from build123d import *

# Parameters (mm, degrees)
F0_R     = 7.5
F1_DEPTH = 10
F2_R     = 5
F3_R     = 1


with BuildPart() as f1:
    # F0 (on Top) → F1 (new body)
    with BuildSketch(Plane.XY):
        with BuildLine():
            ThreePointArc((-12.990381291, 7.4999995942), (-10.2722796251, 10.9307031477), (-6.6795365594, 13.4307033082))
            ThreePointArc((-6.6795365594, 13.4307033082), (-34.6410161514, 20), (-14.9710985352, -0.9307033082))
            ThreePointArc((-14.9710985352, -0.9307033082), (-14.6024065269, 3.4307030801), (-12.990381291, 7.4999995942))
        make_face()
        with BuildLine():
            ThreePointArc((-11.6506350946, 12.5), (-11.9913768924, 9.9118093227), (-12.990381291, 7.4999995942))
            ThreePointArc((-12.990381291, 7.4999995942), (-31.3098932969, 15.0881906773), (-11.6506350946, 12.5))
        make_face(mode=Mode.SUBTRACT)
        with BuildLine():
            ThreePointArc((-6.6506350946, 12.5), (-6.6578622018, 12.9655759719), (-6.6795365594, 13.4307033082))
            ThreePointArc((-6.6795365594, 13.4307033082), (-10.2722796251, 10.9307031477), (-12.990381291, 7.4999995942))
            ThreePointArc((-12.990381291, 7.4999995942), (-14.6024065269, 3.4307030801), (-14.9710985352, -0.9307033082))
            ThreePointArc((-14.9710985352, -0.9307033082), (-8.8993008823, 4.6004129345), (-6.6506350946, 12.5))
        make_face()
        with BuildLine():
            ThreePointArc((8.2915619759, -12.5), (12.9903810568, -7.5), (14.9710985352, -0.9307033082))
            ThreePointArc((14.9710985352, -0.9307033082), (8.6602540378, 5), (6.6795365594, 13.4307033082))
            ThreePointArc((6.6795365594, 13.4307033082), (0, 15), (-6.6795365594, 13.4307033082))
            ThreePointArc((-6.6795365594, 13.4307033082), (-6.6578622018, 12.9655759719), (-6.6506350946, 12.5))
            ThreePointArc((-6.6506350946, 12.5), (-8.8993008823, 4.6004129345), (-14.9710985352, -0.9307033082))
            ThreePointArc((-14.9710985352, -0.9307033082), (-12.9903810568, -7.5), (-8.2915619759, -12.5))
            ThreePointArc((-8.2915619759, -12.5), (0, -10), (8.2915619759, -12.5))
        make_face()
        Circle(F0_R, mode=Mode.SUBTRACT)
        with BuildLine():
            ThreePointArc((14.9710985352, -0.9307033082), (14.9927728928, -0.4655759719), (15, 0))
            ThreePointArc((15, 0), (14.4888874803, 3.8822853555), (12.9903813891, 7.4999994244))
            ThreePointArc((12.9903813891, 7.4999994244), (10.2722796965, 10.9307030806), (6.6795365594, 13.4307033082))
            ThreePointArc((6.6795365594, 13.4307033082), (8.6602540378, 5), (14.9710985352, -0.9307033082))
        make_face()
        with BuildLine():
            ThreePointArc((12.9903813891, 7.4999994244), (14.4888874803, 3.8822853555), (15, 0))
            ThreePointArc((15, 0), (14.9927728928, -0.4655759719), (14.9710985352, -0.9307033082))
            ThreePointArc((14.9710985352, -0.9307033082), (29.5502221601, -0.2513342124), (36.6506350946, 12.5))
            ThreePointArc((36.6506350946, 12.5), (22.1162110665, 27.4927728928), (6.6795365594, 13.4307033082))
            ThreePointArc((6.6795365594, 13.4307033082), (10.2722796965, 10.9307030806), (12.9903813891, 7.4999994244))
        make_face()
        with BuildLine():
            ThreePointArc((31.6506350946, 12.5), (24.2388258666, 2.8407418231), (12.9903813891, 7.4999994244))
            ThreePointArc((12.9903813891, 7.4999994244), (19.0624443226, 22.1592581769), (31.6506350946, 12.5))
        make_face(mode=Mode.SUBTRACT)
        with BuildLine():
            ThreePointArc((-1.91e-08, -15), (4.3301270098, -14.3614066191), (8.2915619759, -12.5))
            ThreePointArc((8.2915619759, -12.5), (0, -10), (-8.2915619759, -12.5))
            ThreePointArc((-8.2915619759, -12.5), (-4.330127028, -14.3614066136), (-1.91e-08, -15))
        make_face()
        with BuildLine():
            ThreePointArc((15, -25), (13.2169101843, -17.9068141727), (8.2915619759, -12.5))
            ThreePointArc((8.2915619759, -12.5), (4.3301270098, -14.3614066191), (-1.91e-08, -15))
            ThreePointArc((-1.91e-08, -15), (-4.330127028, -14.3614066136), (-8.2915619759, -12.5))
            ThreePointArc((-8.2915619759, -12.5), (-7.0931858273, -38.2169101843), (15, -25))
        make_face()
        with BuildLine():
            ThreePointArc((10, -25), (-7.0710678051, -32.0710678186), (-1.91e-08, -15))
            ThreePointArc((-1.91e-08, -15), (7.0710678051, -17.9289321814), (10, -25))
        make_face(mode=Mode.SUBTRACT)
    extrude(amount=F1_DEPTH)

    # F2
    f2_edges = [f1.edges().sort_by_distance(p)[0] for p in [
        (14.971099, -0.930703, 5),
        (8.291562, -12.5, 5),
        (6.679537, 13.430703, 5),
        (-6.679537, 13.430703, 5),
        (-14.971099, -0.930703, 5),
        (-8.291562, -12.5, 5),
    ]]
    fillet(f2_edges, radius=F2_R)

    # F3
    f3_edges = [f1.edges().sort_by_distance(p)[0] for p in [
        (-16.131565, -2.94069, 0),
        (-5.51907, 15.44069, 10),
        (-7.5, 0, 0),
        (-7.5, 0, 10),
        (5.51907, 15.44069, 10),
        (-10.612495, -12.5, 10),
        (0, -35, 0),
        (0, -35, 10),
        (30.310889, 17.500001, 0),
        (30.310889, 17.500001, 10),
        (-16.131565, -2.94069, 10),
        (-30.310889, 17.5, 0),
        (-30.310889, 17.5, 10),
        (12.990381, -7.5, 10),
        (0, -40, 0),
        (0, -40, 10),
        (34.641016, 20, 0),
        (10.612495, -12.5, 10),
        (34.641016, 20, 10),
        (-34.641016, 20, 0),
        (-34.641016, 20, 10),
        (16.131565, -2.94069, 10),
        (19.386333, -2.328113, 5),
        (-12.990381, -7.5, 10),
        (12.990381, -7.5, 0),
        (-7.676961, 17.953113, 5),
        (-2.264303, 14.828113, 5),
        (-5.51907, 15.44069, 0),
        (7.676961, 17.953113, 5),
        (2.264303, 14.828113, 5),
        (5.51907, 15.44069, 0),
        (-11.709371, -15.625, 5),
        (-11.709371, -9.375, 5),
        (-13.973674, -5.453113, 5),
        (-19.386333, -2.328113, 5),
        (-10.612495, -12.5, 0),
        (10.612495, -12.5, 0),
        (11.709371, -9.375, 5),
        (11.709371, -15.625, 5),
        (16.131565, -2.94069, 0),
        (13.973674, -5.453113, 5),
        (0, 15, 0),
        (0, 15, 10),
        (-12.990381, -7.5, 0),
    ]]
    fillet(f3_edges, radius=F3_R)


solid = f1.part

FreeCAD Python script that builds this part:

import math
import FreeCAD as App
import Part
import Sketcher


def edges_at(feature, points):
    """Names of the edges that pass closest to the given points."""
    edges = feature.Shape.Edges
    near = lambda p: min(range(len(edges)), key=lambda i: edges[i].distToShape(Part.Vertex(*p))[0])
    return sorted({f"Edge{near(p) + 1}" for p in points})

doc = App.newDocument("Part")
body = doc.addObject("PartDesign::Body", "Body")

# Sketch on XY plane
sketch1 = body.newObject("Sketcher::SketchObject", "Sketch")
sketch1.AttachmentSupport = (doc.getObject("XY_Plane"), [""])
sketch1.MapMode = "FlatFace"
sketch1.addGeometry([
    Part.ArcOfCircle(Part.Circle(App.Vector(-22, 12, 0), App.Vector(0, 0, 1), 15), math.radians(4), math.radians(296)),  # 0
    Part.ArcOfCircle(Part.Circle(App.Vector(0, 0, 0), App.Vector(0, 0, 1), 15), math.radians(-176), math.radians(-124)),  # 1
    Part.ArcOfCircle(Part.Circle(App.Vector(0, -25, 0), App.Vector(0, 0, 1), 15), math.radians(124), math.radians(360)),  # 2
    Part.ArcOfCircle(Part.Circle(App.Vector(0, -25, 0), App.Vector(0, 0, 1), 15), math.radians(0), math.radians(56)),  # 3
    Part.ArcOfCircle(Part.Circle(App.Vector(0, 0, 0), App.Vector(0, 0, 1), 15), math.radians(-56), math.radians(-4)),  # 4
    Part.ArcOfCircle(Part.Circle(App.Vector(22, 12, 0), App.Vector(0, 0, 1), 15), math.radians(-116), math.radians(0)),  # 5
    Part.ArcOfCircle(Part.Circle(App.Vector(22, 12, 0), App.Vector(0, 0, 1), 15), math.radians(0), math.radians(176)),  # 6
    Part.ArcOfCircle(Part.Circle(App.Vector(0, 0, 0), App.Vector(0, 0, 1), 15), math.radians(64), math.radians(116)),  # 7
    Part.ArcOfCircle(Part.Circle(App.Vector(0, -25, 0), App.Vector(0, 0, 1), 10), math.radians(0), math.radians(90)),  # 8
    Part.ArcOfCircle(Part.Circle(App.Vector(0, -25, 0), App.Vector(0, 0, 1), 10), math.radians(90), math.radians(360)),  # 9
    Part.ArcOfCircle(Part.Circle(App.Vector(-22, 13, 0), App.Vector(0, 0, 1), 10), math.radians(-30), math.radians(0)),  # 10
    Part.ArcOfCircle(Part.Circle(App.Vector(-22, 12, 0), App.Vector(0, 0, 1), 10), math.radians(0), math.radians(330)),  # 11
    Part.Circle(App.Vector(0, 0, 0), App.Vector(0, 0, 1), 8),  # 12
    Part.ArcOfCircle(Part.Circle(App.Vector(22, 12, 0), App.Vector(0, 0, 1), 10), math.radians(0), math.radians(210)),  # 13
    Part.ArcOfCircle(Part.Circle(App.Vector(22, 12, 0), App.Vector(0, 0, 1), 10), math.radians(-150), math.radians(0)),  # 14
], False)
sketch1.addConstraint([
    Sketcher.Constraint("Coincident", 0, 2, 1, 1),
    Sketcher.Constraint("Coincident", 1, 2, 2, 1),
    Sketcher.Constraint("Tangent", 2, 2, 3, 1),
    Sketcher.Constraint("Coincident", 3, 2, 4, 1),
    Sketcher.Constraint("Coincident", 4, 2, 5, 1),
    Sketcher.Constraint("Tangent", 5, 2, 6, 1),
    Sketcher.Constraint("Coincident", 6, 2, 7, 1),
    Sketcher.Constraint("Coincident", 7, 2, 0, 1),
    Sketcher.Constraint("Tangent", 8, 1, 9, 2),
    Sketcher.Constraint("Coincident", 9, 1, 8, 2),
    Sketcher.Constraint("Tangent", 10, 1, 11, 2),
    Sketcher.Constraint("Coincident", 11, 1, 10, 2),
    Sketcher.Constraint("Tangent", 13, 1, 14, 2),
    Sketcher.Constraint("Coincident", 14, 1, 13, 2),
    Sketcher.Constraint("Coincident", 1, 3, -1, 1),
    Sketcher.Constraint("Coincident", 4, 3, -1, 1),
    Sketcher.Constraint("Coincident", 7, 3, -1, 1),
    Sketcher.Constraint("Coincident", 12, 3, -1, 1),
    Sketcher.Constraint("Coincident", 8, 3, 2, 3),
    Sketcher.Constraint("Coincident", 10, 3, 0, 3),
    Sketcher.Constraint("Coincident", 13, 3, 5, 3),
    Sketcher.Constraint("Equal", 0, 1),
    Sketcher.Constraint("Equal", 1, 2),
    Sketcher.Constraint("Equal", 2, 3),
    Sketcher.Constraint("Equal", 3, 4),
    Sketcher.Constraint("Equal", 4, 5),
    Sketcher.Constraint("Equal", 5, 6),
    Sketcher.Constraint("Equal", 6, 7),
    Sketcher.Constraint("Equal", 9, 10),
    Sketcher.Constraint("Equal", 11, 13),
    Sketcher.Constraint("Symmetric", 0, 3, 5, 3, -2),
    Sketcher.Constraint("PointOnObject", 2, 3, -2),
    Sketcher.Constraint("PointOnObject", 9, 1, -2),
    Sketcher.Constraint("Horizontal", 9, 3, 2, 2),
    Sketcher.Constraint("Horizontal", 14, 3, 5, 2),
    Sketcher.Constraint("Horizontal", 2, 2, 8, 1),
    Sketcher.Constraint("Horizontal", 5, 2, 11, 1),
    Sketcher.Constraint("Horizontal", 11, 1, 13, 1),
    Sketcher.Constraint("Horizontal", 10, 1, 14, 1),
    Sketcher.Constraint("Diameter", 12, 15.0),
    Sketcher.Constraint("Radius", 0, 15.0),
    Sketcher.Constraint("Radius", 8, 10.0),
    Sketcher.Constraint("DistanceY", 2, 3, -1, 1, 25.0),
    Sketcher.Constraint("DistanceY", 10, 1, 0, 3, 5.0),
    Sketcher.Constraint("DistanceY", -1, 1, 0, 3, 12.5),
    Sketcher.Constraint("DistanceX", -1, 1, 4, 2, 14.971099),
])
pad1 = body.newObject("PartDesign::Pad", "Pad")
pad1.Profile = sketch1
pad1.Length = 10
doc.recompute()

fillet = body.newObject("PartDesign::Fillet", "Fillet")
fillet.Base = (pad1, edges_at(pad1, [
    (14.971, -0.931, 5),
    (8.292, -12.5, 5),
    (6.68, 13.431, 5),
    (-6.68, 13.431, 5),
    (-14.971, -0.931, 5),
    (-8.292, -12.5, 5),
]))
fillet.Radius = 5
doc.recompute()

fillet2 = body.newObject("PartDesign::Fillet", "Fillet001")
fillet2.Base = (fillet, ["Edge1"])
fillet2.UseAllEdges = True
fillet2.Radius = 1

doc.recompute()
